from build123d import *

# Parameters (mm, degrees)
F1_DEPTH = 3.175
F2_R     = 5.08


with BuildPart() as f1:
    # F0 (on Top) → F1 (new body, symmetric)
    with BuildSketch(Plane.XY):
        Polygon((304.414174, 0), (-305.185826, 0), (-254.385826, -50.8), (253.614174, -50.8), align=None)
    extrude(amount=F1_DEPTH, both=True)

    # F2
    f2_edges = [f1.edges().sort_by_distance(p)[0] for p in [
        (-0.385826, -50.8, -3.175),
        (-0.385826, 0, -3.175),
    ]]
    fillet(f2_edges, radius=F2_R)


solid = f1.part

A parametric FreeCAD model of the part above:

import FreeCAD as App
import Part
import Sketcher
Q = App.Units.Quantity


def edges_at(feature, points):
    """Names of the edges that pass closest to the given points."""
    edges = feature.Shape.Edges
    near = lambda p: min(range(len(edges)), key=lambda i: edges[i].distToShape(Part.Vertex(*p))[0])
    return sorted({f"Edge{near(p) + 1}" for p in points})

doc = App.newDocument("Part")
body = doc.addObject("PartDesign::Body", "Body")

# Sketch on XY plane
sketch1 = body.newObject("Sketcher::SketchObject", "Sketch")
sketch1.AttachmentSupport = (doc.getObject("XY_Plane"), [""])
sketch1.MapMode = "FlatFace"
sketch1.addGeometry([
    Part.LineSegment(App.Vector(304.414174, 0, 0), App.Vector(-305.185826, 0, 0)),
    Part.LineSegment(App.Vector(-305.185826, 0, 0), App.Vector(-254.385826, -50.8, 0)),
    Part.LineSegment(App.Vector(-254.385826, -50.8, 0), App.Vector(253.614174, -50.8, 0)),
    Part.LineSegment(App.Vector(253.614174, -50.8, 0), App.Vector(304.414174, 0, 0)),
], False)
sketch1.addConstraint([
    Sketcher.Constraint("Coincident", 0, 2, 1, 1),
    Sketcher.Constraint("Coincident", 1, 2, 2, 1),
    Sketcher.Constraint("Coincident", 2, 2, 3, 1),
    Sketcher.Constraint("Coincident", 3, 2, 0, 1),
    Sketcher.Constraint("Horizontal", 0),
    Sketcher.Constraint("Horizontal", 2),
    Sketcher.Constraint("PointOnObject", 0, 2, -1),
    Sketcher.Constraint("Perpendicular", 1, 3),
    Sketcher.Constraint("Equal", 1, 3),
    Sketcher.Constraint("DistanceX", 0, 2, 0, 1, Q("24 in")),
    Sketcher.Constraint("DistanceX", 2, 1, 2, 2, Q("20 in")),
    Sketcher.Constraint("DistanceX", 0, 2, -1, 1, Q("305.185826 mm")),
])
pad1 = body.newObject("PartDesign::Pad", "Pad")
pad1.Profile = sketch1
pad1.Length = Q("0.25 in")
pad1.Midplane = True
doc.recompute()

fillet = body.newObject("PartDesign::Fillet", "Fillet")
fillet.Base = (pad1, edges_at(pad1, [(-0.386, -50.8, -3.175), (-0.386, 0, -3.175)]))
fillet.Radius = Q("0.2 in")

doc.recompute()
